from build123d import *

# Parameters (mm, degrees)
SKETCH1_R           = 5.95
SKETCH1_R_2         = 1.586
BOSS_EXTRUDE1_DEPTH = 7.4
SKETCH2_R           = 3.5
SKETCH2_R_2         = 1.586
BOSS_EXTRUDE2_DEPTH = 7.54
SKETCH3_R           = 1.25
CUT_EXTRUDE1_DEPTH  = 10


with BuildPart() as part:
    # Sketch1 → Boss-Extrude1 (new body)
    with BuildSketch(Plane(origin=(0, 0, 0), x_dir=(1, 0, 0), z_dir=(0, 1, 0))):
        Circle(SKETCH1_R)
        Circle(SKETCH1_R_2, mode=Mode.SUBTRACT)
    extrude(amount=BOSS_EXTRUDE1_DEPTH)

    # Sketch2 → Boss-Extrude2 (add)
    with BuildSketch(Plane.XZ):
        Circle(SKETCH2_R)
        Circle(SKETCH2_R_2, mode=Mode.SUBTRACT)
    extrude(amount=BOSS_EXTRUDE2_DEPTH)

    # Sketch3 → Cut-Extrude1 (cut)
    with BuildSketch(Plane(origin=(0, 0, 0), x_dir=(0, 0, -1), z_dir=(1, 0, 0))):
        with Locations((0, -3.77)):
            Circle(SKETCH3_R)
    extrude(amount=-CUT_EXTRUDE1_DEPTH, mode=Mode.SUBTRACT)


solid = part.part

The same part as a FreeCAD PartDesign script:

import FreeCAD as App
import Part
import Sketcher

V = App.Vector

doc = App.newDocument("Part")
body = doc.addObject("PartDesign::Body", "Body")

sketch1 = body.newObject("Sketcher::SketchObject", "Sketch")
sketch1.AttachmentSupport = (doc.getObject("XZ_Plane"), [""])
sketch1.MapMode = "FlatFace"
sketch1.addGeometry(Part.Circle(V(0, 0, 0), V(0, 0, 1), 6), False)
sketch1.addGeometry(Part.Circle(V(0, 0, 0), V(0, 0, 1), 1.6), False)
sketch1.addConstraint(Sketcher.Constraint("Coincident", 0, 3, -1, 1))
sketch1.addConstraint(Sketcher.Constraint("Coincident", 1, 3, -1, 1))
sketch1.addConstraint(Sketcher.Constraint("Diameter", 0, 11.9))
sketch1.addConstraint(Sketcher.Constraint("Diameter", 1, 3.172))
pad1 = body.newObject("PartDesign::Pad", "Pad")
pad1.Profile = sketch1
pad1.Length = 7.4
pad1.Reversed = True

sketch2 = body.newObject("Sketcher::SketchObject", "Sketch001")
sketch2.AttachmentSupport = (doc.getObject("XZ_Plane"), [""])
sketch2.MapMode = "FlatFace"
sketch2.addGeometry(Part.Circle(V(0, 0, 0), V(0, 0, 1), 3.5), False)
sketch2.addGeometry(Part.Circle(V(0, 0, 0), V(0, 0, 1), 1.6), False)
sketch2.addConstraint(Sketcher.Constraint("Coincident", 0, 3, -1, 1))
sketch2.addConstraint(Sketcher.Constraint("Coincident", 1, 3, -1, 1))
sketch2.addConstraint(Sketcher.Constraint("Diameter", 0, 7.0))
sketch2.addConstraint(Sketcher.Constraint("Diameter", 1, 3.172))
pad2 = body.newObject("PartDesign::Pad", "Pad001")
pad2.Profile = sketch2
pad2.Length = 7.54

sketch3 = body.newObject("Sketcher::SketchObject", "Sketch002")
sketch3.AttachmentSupport = (doc.getObject("YZ_Plane"), [""])
sketch3.MapMode = "FlatFace"
sketch3.addGeometry(Part.Circle(V(-3.8, 0, 0), V(0, 0, 1), 1.2), False)
sketch3.addConstraint(Sketcher.Constraint("PointOnObject", 0, 3, -1))
sketch3.addConstraint(Sketcher.Constraint("Diameter", 0, 2.5))
sketch3.addConstraint(Sketcher.Constraint("DistanceX", 0, 3, -1, 1, 3.77))
pocket1 = body.newObject("PartDesign::Pocket", "Pocket")
pocket1.Profile = sketch3
pocket1.Length = 10

doc.recompute()
